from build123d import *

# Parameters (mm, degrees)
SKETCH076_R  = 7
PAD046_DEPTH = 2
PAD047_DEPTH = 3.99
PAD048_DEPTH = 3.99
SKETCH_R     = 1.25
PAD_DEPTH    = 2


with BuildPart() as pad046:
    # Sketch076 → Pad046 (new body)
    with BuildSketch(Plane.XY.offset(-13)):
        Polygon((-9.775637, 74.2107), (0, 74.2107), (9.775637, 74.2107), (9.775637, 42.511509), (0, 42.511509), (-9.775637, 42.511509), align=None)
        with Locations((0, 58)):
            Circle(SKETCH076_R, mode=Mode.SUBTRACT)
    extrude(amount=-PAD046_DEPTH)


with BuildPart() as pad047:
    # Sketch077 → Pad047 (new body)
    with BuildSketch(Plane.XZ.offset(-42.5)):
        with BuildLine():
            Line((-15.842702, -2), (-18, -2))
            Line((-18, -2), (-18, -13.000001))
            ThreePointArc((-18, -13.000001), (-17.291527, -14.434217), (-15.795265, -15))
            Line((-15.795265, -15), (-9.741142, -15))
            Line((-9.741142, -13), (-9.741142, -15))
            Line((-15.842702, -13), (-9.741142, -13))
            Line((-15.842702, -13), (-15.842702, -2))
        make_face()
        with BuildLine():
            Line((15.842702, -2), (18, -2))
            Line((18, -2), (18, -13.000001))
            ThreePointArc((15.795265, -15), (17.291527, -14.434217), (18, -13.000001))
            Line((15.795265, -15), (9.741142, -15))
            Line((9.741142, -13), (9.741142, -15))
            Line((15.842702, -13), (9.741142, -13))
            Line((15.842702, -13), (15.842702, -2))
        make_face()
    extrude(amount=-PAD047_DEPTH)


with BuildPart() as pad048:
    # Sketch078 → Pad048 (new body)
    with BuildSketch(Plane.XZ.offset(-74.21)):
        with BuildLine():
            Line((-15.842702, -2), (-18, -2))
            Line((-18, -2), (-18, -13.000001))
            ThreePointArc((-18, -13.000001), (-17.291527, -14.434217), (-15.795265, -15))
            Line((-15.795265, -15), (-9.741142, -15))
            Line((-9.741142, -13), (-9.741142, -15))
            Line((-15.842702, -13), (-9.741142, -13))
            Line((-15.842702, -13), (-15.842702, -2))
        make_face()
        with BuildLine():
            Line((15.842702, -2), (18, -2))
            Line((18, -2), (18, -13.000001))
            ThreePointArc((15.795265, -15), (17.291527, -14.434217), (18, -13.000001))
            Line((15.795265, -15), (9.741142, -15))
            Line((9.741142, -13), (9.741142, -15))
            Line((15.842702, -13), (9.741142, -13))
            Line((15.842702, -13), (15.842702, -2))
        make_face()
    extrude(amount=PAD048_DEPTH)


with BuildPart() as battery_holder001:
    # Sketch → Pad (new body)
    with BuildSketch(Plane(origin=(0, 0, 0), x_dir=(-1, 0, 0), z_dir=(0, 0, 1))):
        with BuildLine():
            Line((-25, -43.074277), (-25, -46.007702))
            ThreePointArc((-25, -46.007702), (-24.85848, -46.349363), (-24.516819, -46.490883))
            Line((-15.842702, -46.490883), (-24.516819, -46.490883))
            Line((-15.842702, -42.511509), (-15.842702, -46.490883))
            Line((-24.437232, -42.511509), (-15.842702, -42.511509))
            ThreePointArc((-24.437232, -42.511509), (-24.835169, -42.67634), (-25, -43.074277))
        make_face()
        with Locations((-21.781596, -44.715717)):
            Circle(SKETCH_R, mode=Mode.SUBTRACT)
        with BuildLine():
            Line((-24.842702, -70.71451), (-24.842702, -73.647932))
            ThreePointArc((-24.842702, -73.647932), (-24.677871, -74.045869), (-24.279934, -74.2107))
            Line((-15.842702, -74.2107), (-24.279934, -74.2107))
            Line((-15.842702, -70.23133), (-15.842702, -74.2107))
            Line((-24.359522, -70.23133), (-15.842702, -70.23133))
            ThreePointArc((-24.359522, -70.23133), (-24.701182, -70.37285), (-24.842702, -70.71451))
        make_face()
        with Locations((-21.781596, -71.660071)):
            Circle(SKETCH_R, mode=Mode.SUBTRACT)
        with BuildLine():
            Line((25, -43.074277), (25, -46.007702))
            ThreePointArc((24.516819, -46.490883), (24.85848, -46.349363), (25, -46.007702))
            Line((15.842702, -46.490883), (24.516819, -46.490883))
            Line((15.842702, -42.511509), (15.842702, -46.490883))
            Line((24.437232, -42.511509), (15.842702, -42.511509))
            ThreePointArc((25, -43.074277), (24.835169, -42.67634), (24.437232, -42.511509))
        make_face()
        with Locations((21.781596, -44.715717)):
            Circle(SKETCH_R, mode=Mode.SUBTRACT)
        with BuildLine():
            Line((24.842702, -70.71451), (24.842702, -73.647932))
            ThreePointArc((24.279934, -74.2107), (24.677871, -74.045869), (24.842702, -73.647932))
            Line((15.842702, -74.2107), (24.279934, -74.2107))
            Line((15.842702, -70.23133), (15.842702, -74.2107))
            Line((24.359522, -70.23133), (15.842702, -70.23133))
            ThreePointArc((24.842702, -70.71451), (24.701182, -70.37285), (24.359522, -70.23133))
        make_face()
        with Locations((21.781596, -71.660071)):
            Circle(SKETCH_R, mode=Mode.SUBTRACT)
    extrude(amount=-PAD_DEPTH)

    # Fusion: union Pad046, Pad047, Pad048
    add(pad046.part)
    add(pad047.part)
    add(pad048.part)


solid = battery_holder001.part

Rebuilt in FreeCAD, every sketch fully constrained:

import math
import FreeCAD as App
import Part
import Sketcher
from FreeCAD import Vector
Q = App.Units.Quantity


def add_polygon(sketch, points):
    """Adds a closed chain of lines whose ends are joined by coincident constraints."""
    first, n = sketch.GeometryCount, len(points)
    for a, b in zip(points, points[1:] + points[:1]):
        sketch.addGeometry(Part.LineSegment(App.Vector(*a, 0), App.Vector(*b, 0)), False)
    for i in range(n):
        sketch.addConstraint(Sketcher.Constraint("Coincident", first + i, 2, first + (i + 1) % n, 1))

doc = App.newDocument("Part")
body = doc.addObject("PartDesign::Body", "Body")

# Sketch on XY plane
sketch1 = body.newObject("Sketcher::SketchObject", "Sketch")
sketch1.AttachmentSupport = (doc.getObject("XY_Plane"), [""])
sketch1.MapMode = "FlatFace"
sketch1.AttachmentOffset = App.Placement(Vector(0, 0, -13), App.Rotation())
add_polygon(sketch1, [(9.775637, 74.2107), (-9.775637, 74.2107), (-9.775637, 42.511509), (9.775637, 42.511509)])  # lines 0-3
sketch1.addGeometry(Part.Circle(Vector(0, 58, 0), Vector(0, 0, 1), 7), False)  # 4
sketch1.addConstraint(Sketcher.Constraint("Horizontal", 0))
sketch1.addConstraint(Sketcher.Constraint("Vertical", 1))
sketch1.addConstraint(Sketcher.Constraint("Horizontal", 2))
sketch1.addConstraint(Sketcher.Constraint("Vertical", 3))
sketch1.addConstraint(Sketcher.Constraint("PointOnObject", 4, 3, -2))
sketch1.addConstraint(Sketcher.Constraint("Diameter", 4, Q("14 mm")))
sketch1.addConstraint(Sketcher.Constraint("DistanceY", -1, 1, 4, 3, Q("58 mm")))
sketch1.addConstraint(Sketcher.Constraint("DistanceY", 1, 2, 1, 1, Q("31.699191 mm")))
sketch1.addConstraint(Sketcher.Constraint("DistanceY", -1, 1, 0, 2, Q("74.2107 mm")))
sketch1.addConstraint(Sketcher.Constraint("DistanceX", 0, 2, 0, 1, Q("19.551274 mm")))
sketch1.addConstraint(Sketcher.Constraint("DistanceX", 0, 2, -1, 1, Q("9.775637 mm")))
pad1 = body.newObject("PartDesign::Pad", "Pad")
pad1.Profile = sketch1
pad1.Length = 2
pad1.Reversed = True
body2 = doc.addObject("PartDesign::Body", "Body001")
body2.AllowCompound = True

# Sketch on XZ plane
sketch2 = body2.newObject("Sketcher::SketchObject", "Sketch001")
sketch2.AttachmentSupport = (doc.getObject("XZ_Plane001"), [""])
sketch2.MapMode = "FlatFace"
sketch2.AttachmentOffset = App.Placement(Vector(0, 0, -42.5), App.Rotation())
sketch2.addGeometry(Part.LineSegment(Vector(-15.842702, -2, 0), Vector(-18, -2, 0)), False)
sketch2.addGeometry(Part.LineSegment(Vector(-18, -2, 0), Vector(-18, -13.000001, 0)), False)
sketch2.addGeometry(Part.ArcOfCircle(Part.Circle(Vector(-15.825205, -12.817791, 0), Vector(0, 0, 1), 2.182414), math.radians(-175.210792), math.radians(-89.213944)), False)
sketch2.addGeometry(Part.LineSegment(Vector(-15.795265, -15, 0), Vector(-9.741142, -15, 0)), False)
sketch2.addGeometry(Part.LineSegment(Vector(-9.741142, -15, 0), Vector(-9.741142, -13, 0)), False)
sketch2.addGeometry(Part.LineSegment(Vector(-9.741142, -13, 0), Vector(-15.842702, -13, 0)), False)
sketch2.addGeometry(Part.LineSegment(Vector(-15.842702, -13, 0), Vector(-15.842702, -2, 0)), False)
sketch2.addGeometry(Part.LineSegment(Vector(18, -2, 0), Vector(15.842702, -2, 0)), False)
sketch2.addGeometry(Part.LineSegment(Vector(15.842702, -2, 0), Vector(15.842702, -13, 0)), False)
sketch2.addGeometry(Part.LineSegment(Vector(15.842702, -13, 0), Vector(9.741142, -13, 0)), False)
sketch2.addGeometry(Part.LineSegment(Vector(9.741142, -13, 0), Vector(9.741142, -15, 0)), False)
sketch2.addGeometry(Part.LineSegment(Vector(9.741142, -15, 0), Vector(15.795265, -15, 0)), False)
sketch2.addGeometry(Part.ArcOfCircle(Part.Circle(Vector(15.825205, -12.817791, 0), Vector(0, 0, 1), 2.182414), math.radians(-90.786056), math.radians(-4.789208)), False)
sketch2.addGeometry(Part.LineSegment(Vector(18, -13.000001, 0), Vector(18, -2, 0)), False)
sketch2.addConstraint(Sketcher.Constraint("Coincident", 0, 2, 1, 1))
sketch2.addConstraint(Sketcher.Constraint("Coincident", 1, 2, 2, 1))
sketch2.addConstraint(Sketcher.Constraint("Coincident", 2, 2, 3, 1))
sketch2.addConstraint(Sketcher.Constraint("Coincident", 3, 2, 4, 1))
sketch2.addConstraint(Sketcher.Constraint("Coincident", 4, 2, 5, 1))
sketch2.addConstraint(Sketcher.Constraint("Coincident", 5, 2, 6, 1))
sketch2.addConstraint(Sketcher.Constraint("Coincident", 6, 2, 0, 1))
sketch2.addConstraint(Sketcher.Constraint("Coincident", 7, 2, 8, 1))
sketch2.addConstraint(Sketcher.Constraint("Coincident", 8, 2, 9, 1))
sketch2.addConstraint(Sketcher.Constraint("Coincident", 9, 2, 10, 1))
sketch2.addConstraint(Sketcher.Constraint("Coincident", 10, 2, 11, 1))
sketch2.addConstraint(Sketcher.Constraint("Coincident", 11, 2, 12, 1))
sketch2.addConstraint(Sketcher.Constraint("Coincident", 12, 2, 13, 1))
sketch2.addConstraint(Sketcher.Constraint("Coincident", 13, 2, 7, 1))
sketch2.addConstraint(Sketcher.Constraint("Horizontal", 0))
sketch2.addConstraint(Sketcher.Constraint("Vertical", 1))
sketch2.addConstraint(Sketcher.Constraint("Horizontal", 3))
sketch2.addConstraint(Sketcher.Constraint("Vertical", 4))
sketch2.addConstraint(Sketcher.Constraint("Horizontal", 5))
sketch2.addConstraint(Sketcher.Constraint("Vertical", 6))
sketch2.addConstraint(Sketcher.Constraint("Horizontal", 7))
sketch2.addConstraint(Sketcher.Constraint("Vertical", 8))
sketch2.addConstraint(Sketcher.Constraint("Horizontal", 9))
sketch2.addConstraint(Sketcher.Constraint("Vertical", 10))
sketch2.addConstraint(Sketcher.Constraint("Horizontal", 11))
sketch2.addConstraint(Sketcher.Constraint("Vertical", 13))
sketch2.addConstraint(Sketcher.Constraint("Equal", 2, 12))
sketch2.addConstraint(Sketcher.Constraint("Symmetric", 2, 3, 12, 3, -2))
sketch2.addConstraint(Sketcher.Constraint("Symmetric", 6, 2, 7, 2, -2))
sketch2.addConstraint(Sketcher.Constraint("Symmetric", 4, 2, 9, 2, -2))
sketch2.addConstraint(Sketcher.Constraint("Horizontal", 1, 2, 4, 2))
sketch2.addConstraint(Sketcher.Constraint("Horizontal", 3, 2, 10, 2))
sketch2.addConstraint(Sketcher.Constraint("Horizontal", 9, 2, 12, 2))
sketch2.addConstraint(Sketcher.Constraint("DistanceY", 1, 2, 1, 1, Q("11.000001 mm")))
sketch2.addConstraint(Sketcher.Constraint("DistanceY", 4, 1, 4, 2, Q("2 mm")))
sketch2.addConstraint(Sketcher.Constraint("DistanceX", 0, 2, -1, 1, Q("18 mm")))
sketch2.addConstraint(Sketcher.Constraint("DistanceY", 0, 2, -1, 1, Q("2 mm")))
sketch2.addConstraint(Sketcher.Constraint("DistanceX", 0, 2, 0, 1, Q("2.157298 mm")))
sketch2.addConstraint(Sketcher.Constraint("Radius", 2, Q("2.182414 mm")))
sketch2.addConstraint(Sketcher.Constraint("DistanceX", 5, 2, 5, 1, Q("6.10156 mm")))
sketch2.addConstraint(Sketcher.Constraint("DistanceX", 3, 1, 3, 2, Q("6.054123 mm")))
pad2 = body2.newObject("PartDesign::Pad", "Pad001")
pad2.Profile = sketch2
pad2.Length = 3.99
pad2.Reversed = True
body3 = doc.addObject("PartDesign::Body", "Body002")
body3.AllowCompound = True

# Sketch on XZ plane
sketch3 = body3.newObject("Sketcher::SketchObject", "Sketch002")
sketch3.AttachmentSupport = (doc.getObject("XZ_Plane002"), [""])
sketch3.MapMode = "FlatFace"
sketch3.AttachmentOffset = App.Placement(Vector(0, 0, -74.21), App.Rotation())
sketch3.addGeometry(Part.LineSegment(Vector(-15.842702, -2, 0), Vector(-18, -2, 0)), False)
sketch3.addGeometry(Part.LineSegment(Vector(-18, -2, 0), Vector(-18, -13.000001, 0)), False)
sketch3.addGeometry(Part.ArcOfCircle(Part.Circle(Vector(-15.825205, -12.817791, 0), Vector(0, 0, 1), 2.182414), math.radians(-175.210792), math.radians(-89.213944)), False)
sketch3.addGeometry(Part.LineSegment(Vector(-15.795265, -15, 0), Vector(-9.741142, -15, 0)), False)
sketch3.addGeometry(Part.LineSegment(Vector(-9.741142, -15, 0), Vector(-9.741142, -13, 0)), False)
sketch3.addGeometry(Part.LineSegment(Vector(-9.741142, -13, 0), Vector(-15.842702, -13, 0)), False)
sketch3.addGeometry(Part.LineSegment(Vector(-15.842702, -13, 0), Vector(-15.842702, -2, 0)), False)
sketch3.addGeometry(Part.LineSegment(Vector(18, -2, 0), Vector(15.842702, -2, 0)), False)
sketch3.addGeometry(Part.LineSegment(Vector(15.842702, -2, 0), Vector(15.842702, -13, 0)), False)
sketch3.addGeometry(Part.LineSegment(Vector(15.842702, -13, 0), Vector(9.741142, -13, 0)), False)
sketch3.addGeometry(Part.LineSegment(Vector(9.741142, -13, 0), Vector(9.741142, -15, 0)), False)
sketch3.addGeometry(Part.LineSegment(Vector(9.741142, -15, 0), Vector(15.795265, -15, 0)), False)
sketch3.addGeometry(Part.ArcOfCircle(Part.Circle(Vector(15.825205, -12.817791, 0), Vector(0, 0, 1), 2.182414), math.radians(-90.786056), math.radians(-4.789208)), False)
sketch3.addGeometry(Part.LineSegment(Vector(18, -13.000001, 0), Vector(18, -2, 0)), False)
sketch3.addConstraint(Sketcher.Constraint("Coincident", 0, 2, 1, 1))
sketch3.addConstraint(Sketcher.Constraint("Coincident", 1, 2, 2, 1))
sketch3.addConstraint(Sketcher.Constraint("Coincident", 2, 2, 3, 1))
sketch3.addConstraint(Sketcher.Constraint("Coincident", 3, 2, 4, 1))
sketch3.addConstraint(Sketcher.Constraint("Coincident", 4, 2, 5, 1))
sketch3.addConstraint(Sketcher.Constraint("Coincident", 5, 2, 6, 1))
sketch3.addConstraint(Sketcher.Constraint("Coincident", 6, 2, 0, 1))
sketch3.addConstraint(Sketcher.Constraint("Coincident", 7, 2, 8, 1))
sketch3.addConstraint(Sketcher.Constraint("Coincident", 8, 2, 9, 1))
sketch3.addConstraint(Sketcher.Constraint("Coincident", 9, 2, 10, 1))
sketch3.addConstraint(Sketcher.Constraint("Coincident", 10, 2, 11, 1))
sketch3.addConstraint(Sketcher.Constraint("Coincident", 11, 2, 12, 1))
sketch3.addConstraint(Sketcher.Constraint("Coincident", 12, 2, 13, 1))
sketch3.addConstraint(Sketcher.Constraint("Coincident", 13, 2, 7, 1))
sketch3.addConstraint(Sketcher.Constraint("Horizontal", 0))
sketch3.addConstraint(Sketcher.Constraint("Vertical", 1))
sketch3.addConstraint(Sketcher.Constraint("Horizontal", 3))
sketch3.addConstraint(Sketcher.Constraint("Vertical", 4))
sketch3.addConstraint(Sketcher.Constraint("Horizontal", 5))
sketch3.addConstraint(Sketcher.Constraint("Vertical", 6))
sketch3.addConstraint(Sketcher.Constraint("Horizontal", 7))
sketch3.addConstraint(Sketcher.Constraint("Vertical", 8))
sketch3.addConstraint(Sketcher.Constraint("Horizontal", 9))
sketch3.addConstraint(Sketcher.Constraint("Vertical", 10))
sketch3.addConstraint(Sketcher.Constraint("Horizontal", 11))
sketch3.addConstraint(Sketcher.Constraint("Vertical", 13))
sketch3.addConstraint(Sketcher.Constraint("Equal", 2, 12))
sketch3.addConstraint(Sketcher.Constraint("Symmetric", 2, 3, 12, 3, -2))
sketch3.addConstraint(Sketcher.Constraint("Symmetric", 6, 2, 7, 2, -2))
sketch3.addConstraint(Sketcher.Constraint("Symmetric", 4, 2, 9, 2, -2))
sketch3.addConstraint(Sketcher.Constraint("Horizontal", 1, 2, 4, 2))
sketch3.addConstraint(Sketcher.Constraint("Horizontal", 3, 2, 10, 2))
sketch3.addConstraint(Sketcher.Constraint("Horizontal", 9, 2, 12, 2))
sketch3.addConstraint(Sketcher.Constraint("DistanceY", 1, 2, 1, 1, Q("11.000001 mm")))
sketch3.addConstraint(Sketcher.Constraint("DistanceY", 4, 1, 4, 2, Q("2 mm")))
sketch3.addConstraint(Sketcher.Constraint("DistanceX", 0, 2, -1, 1, Q("18 mm")))
sketch3.addConstraint(Sketcher.Constraint("DistanceY", 0, 2, -1, 1, Q("2 mm")))
sketch3.addConstraint(Sketcher.Constraint("DistanceX", 0, 2, 0, 1, Q("2.157298 mm")))
sketch3.addConstraint(Sketcher.Constraint("Radius", 2, Q("2.182414 mm")))
sketch3.addConstraint(Sketcher.Constraint("DistanceX", 5, 2, 5, 1, Q("6.10156 mm")))
sketch3.addConstraint(Sketcher.Constraint("DistanceX", 3, 1, 3, 2, Q("6.054123 mm")))
pad3 = body3.newObject("PartDesign::Pad", "Pad002")
pad3.Profile = sketch3
pad3.Length = 3.99
body4 = doc.addObject("PartDesign::Body", "Body003")
body4.AllowCompound = True

# Sketch on XY plane
sketch4 = body4.newObject("Sketcher::SketchObject", "Sketch003")
sketch4.AttachmentSupport = (doc.getObject("XY_Plane003"), [""])
sketch4.MapMode = "FlatFace"
sketch4.addGeometry(Part.LineSegment(Vector(25, 43.074277, 0), Vector(25, 46.007702, 0)), False)
sketch4.addGeometry(Part.ArcOfCircle(Part.Circle(Vector(24.51682, 46.007703, 0), Vector(0, 0, 1), 0.48318), math.radians(-0.000178), math.radians(90.000178)), False)
sketch4.addGeometry(Part.LineSegment(Vector(24.516819, 46.490883, 0), Vector(15.842702, 46.490883, 0)), False)
sketch4.addGeometry(Part.LineSegment(Vector(15.842702, 46.490883, 0), Vector(15.842702, 42.511509, 0)), False)
sketch4.addGeometry(Part.LineSegment(Vector(15.842702, 42.511509, 0), Vector(24.437232, 42.511509, 0)), False)
sketch4.addGeometry(Part.ArcOfCircle(Part.Circle(Vector(24.437232, 43.074277, 0), Vector(0, 0, 1), 0.562768), math.radians(-89.999976), math.radians(-0.000024)), False)
sketch4.addGeometry(Part.Circle(Vector(21.781596, 44.715717, 0), Vector(0, 0, 1), 1.25), False)
sketch4.addGeometry(Part.LineSegment(Vector(24.842702, 70.71451, 0), Vector(24.842702, 73.647932, 0)), False)
sketch4.addGeometry(Part.ArcOfCircle(Part.Circle(Vector(24.279934, 73.647932, 0), Vector(0, 0, 1), 0.562768), math.radians(0.000024), math.radians(89.999976)), False)
sketch4.addGeometry(Part.LineSegment(Vector(24.279934, 74.2107, 0), Vector(15.842702, 74.2107, 0)), False)
sketch4.addGeometry(Part.LineSegment(Vector(15.842702, 74.2107, 0), Vector(15.842702, 70.23133, 0)), False)
sketch4.addGeometry(Part.LineSegment(Vector(15.842702, 70.23133, 0), Vector(24.359522, 70.23133, 0)), False)
sketch4.addGeometry(Part.ArcOfCircle(Part.Circle(Vector(24.359522, 70.71451, 0), Vector(0, 0, 1), 0.48318), math.radians(-90.000059), math.radians(0.000059)), False)
sketch4.addGeometry(Part.Circle(Vector(21.781596, 71.660071, 0), Vector(0, 0, 1), 1.25), False)
sketch4.addGeometry(Part.LineSegment(Vector(-25, 46.007702, 0), Vector(-25, 43.074277, 0)), False)
sketch4.addGeometry(Part.ArcOfCircle(Part.Circle(Vector(-24.437232, 43.074277, 0), Vector(0, 0, 1), 0.562768), math.radians(-179.999976), math.radians(-90.000024)), False)
sketch4.addGeometry(Part.LineSegment(Vector(-24.437232, 42.511509, 0), Vector(-15.842702, 42.511509, 0)), False)
sketch4.addGeometry(Part.LineSegment(Vector(-15.842702, 42.511509, 0), Vector(-15.842702, 46.490883, 0)), False)
sketch4.addGeometry(Part.LineSegment(Vector(-15.842702, 46.490883, 0), Vector(-24.516819, 46.490883, 0)), False)
sketch4.addGeometry(Part.ArcOfCircle(Part.Circle(Vector(-24.51682, 46.007703, 0), Vector(0, 0, 1), 0.48318), math.radians(89.999822), math.radians(180.000178)), False)
sketch4.addGeometry(Part.Circle(Vector(-21.781596, 44.715717, 0), Vector(0, 0, 1), 1.25), False)
sketch4.addGeometry(Part.LineSegment(Vector(-24.842702, 73.647932, 0), Vector(-24.842702, 70.71451, 0)), False)
sketch4.addGeometry(Part.ArcOfCircle(Part.Circle(Vector(-24.359522, 70.71451, 0), Vector(0, 0, 1), 0.48318), math.radians(179.999941), math.radians(270.000059)), False)
sketch4.addGeometry(Part.LineSegment(Vector(-24.359522, 70.23133, 0), Vector(-15.842702, 70.23133, 0)), False)
sketch4.addGeometry(Part.LineSegment(Vector(-15.842702, 70.23133, 0), Vector(-15.842702, 74.2107, 0)), False)
sketch4.addGeometry(Part.LineSegment(Vector(-15.842702, 74.2107, 0), Vector(-24.279934, 74.2107, 0)), False)
sketch4.addGeometry(Part.ArcOfCircle(Part.Circle(Vector(-24.279934, 73.647932, 0), Vector(0, 0, 1), 0.562768), math.radians(90.000024), math.radians(179.999976)), False)
sketch4.addGeometry(Part.Circle(Vector(-21.781596, 71.660071, 0), Vector(0, 0, 1), 1.25), False)
sketch4.addConstraint(Sketcher.Constraint("Coincident", 0, 2, 1, 1))
sketch4.addConstraint(Sketcher.Constraint("Coincident", 1, 2, 2, 1))
sketch4.addConstraint(Sketcher.Constraint("Coincident", 2, 2, 3, 1))
sketch4.addConstraint(Sketcher.Constraint("Coincident", 3, 2, 4, 1))
sketch4.addConstraint(Sketcher.Constraint("Tangent", 4, 2, 5, 1))
sketch4.addConstraint(Sketcher.Constraint("Tangent", 5, 2, 0, 1))
sketch4.addConstraint(Sketcher.Constraint("Tangent", 7, 2, 8, 1))
sketch4.addConstraint(Sketcher.Constraint("Tangent", 8, 2, 9, 1))
sketch4.addConstraint(Sketcher.Constraint("Coincident", 9, 2, 10, 1))
sketch4.addConstraint(Sketcher.Constraint("Coincident", 10, 2, 11, 1))
sketch4.addConstraint(Sketcher.Constraint("Tangent", 11, 2, 12, 1))
sketch4.addConstraint(Sketcher.Constraint("Tangent", 12, 2, 7, 1))
sketch4.addConstraint(Sketcher.Constraint("Tangent", 14, 2, 15, 1))
sketch4.addConstraint(Sketcher.Constraint("Tangent", 15, 2, 16, 1))
sketch4.addConstraint(Sketcher.Constraint("Coincident", 16, 2, 17, 1))
sketch4.addConstraint(Sketcher.Constraint("Coincident", 17, 2, 18, 1))
sketch4.addConstraint(Sketcher.Constraint("Coincident", 18, 2, 19, 1))
sketch4.addConstraint(Sketcher.Constraint("Coincident", 19, 2, 14, 1))
sketch4.addConstraint(Sketcher.Constraint("Tangent", 21, 2, 22, 1))
sketch4.addConstraint(Sketcher.Constraint("Tangent", 22, 2, 23, 1))
sketch4.addConstraint(Sketcher.Constraint("Coincident", 23, 2, 24, 1))
sketch4.addConstraint(Sketcher.Constraint("Coincident", 24, 2, 25, 1))
sketch4.addConstraint(Sketcher.Constraint("Tangent", 25, 2, 26, 1))
sketch4.addConstraint(Sketcher.Constraint("Tangent", 26, 2, 21, 1))
sketch4.addConstraint(Sketcher.Constraint("Vertical", 0))
sketch4.addConstraint(Sketcher.Constraint("Horizontal", 2))
sketch4.addConstraint(Sketcher.Constraint("Vertical", 3))
sketch4.addConstraint(Sketcher.Constraint("Horizontal", 4))
sketch4.addConstraint(Sketcher.Constraint("Vertical", 7))
sketch4.addConstraint(Sketcher.Constraint("Horizontal", 9))
sketch4.addConstraint(Sketcher.Constraint("Vertical", 10))
sketch4.addConstraint(Sketcher.Constraint("Horizontal", 11))
sketch4.addConstraint(Sketcher.Constraint("Vertical", 14))
sketch4.addConstraint(Sketcher.Constraint("Horizontal", 16))
sketch4.addConstraint(Sketcher.Constraint("Vertical", 17))
sketch4.addConstraint(Sketcher.Constraint("Horizontal", 18))
sketch4.addConstraint(Sketcher.Constraint("Vertical", 21))
sketch4.addConstraint(Sketcher.Constraint("Horizontal", 23))
sketch4.addConstraint(Sketcher.Constraint("Vertical", 24))
sketch4.addConstraint(Sketcher.Constraint("Horizontal", 25))
sketch4.addConstraint(Sketcher.Constraint("Equal", 5, 8))
sketch4.addConstraint(Sketcher.Constraint("Equal", 1, 12))
sketch4.addConstraint(Sketcher.Constraint("Equal", 6, 13))
sketch4.addConstraint(Sketcher.Constraint("Equal", 8, 15))
sketch4.addConstraint(Sketcher.Constraint("Equal", 12, 19))
sketch4.addConstraint(Sketcher.Constraint("Equal", 13, 20))
sketch4.addConstraint(Sketcher.Constraint("Equal", 19, 22))
sketch4.addConstraint(Sketcher.Constraint("Equal", 15, 26))
sketch4.addConstraint(Sketcher.Constraint("Equal", 20, 27))
sketch4.addConstraint(Sketcher.Constraint("Symmetric", 5, 3, 15, 3, -2))
sketch4.addConstraint(Sketcher.Constraint("Symmetric", 6, 3, 20, 3, -2))
sketch4.addConstraint(Sketcher.Constraint("Symmetric", 12, 3, 22, 3, -2))
sketch4.addConstraint(Sketcher.Constraint("Symmetric", 13, 3, 27, 3, -2))
sketch4.addConstraint(Sketcher.Constraint("Symmetric", 2, 2, 17, 2, -2))
sketch4.addConstraint(Sketcher.Constraint("Symmetric", 9, 2, 24, 2, -2))
sketch4.addConstraint(Sketcher.Constraint("Horizontal", 19, 3, 0, 2))
sketch4.addConstraint(Sketcher.Constraint("Horizontal", 0, 2, 19, 2))
sketch4.addConstraint(Sketcher.Constraint("Vertical", 6, 3, 13, 3))
sketch4.addConstraint(Sketcher.Constraint("Vertical", 3, 2, 9, 2))
sketch4.addConstraint(Sketcher.Constraint("Vertical", 19, 3, 18, 2))
sketch4.addConstraint(Sketcher.Constraint("Equal", 2, 18))
sketch4.addConstraint(Sketcher.Constraint("Diameter", 6, Q("2.5 mm")))
sketch4.addConstraint(Sketcher.Constraint("DistanceX", -1, 1, 0, 2, Q("25 mm")))
sketch4.addConstraint(Sketcher.Constraint("DistanceX", 9, 2, 7, 2, Q("9 mm")))
sketch4.addConstraint(Sketcher.Constraint("Radius", 1, Q("0.48318 mm")))
sketch4.addConstraint(Sketcher.Constraint("Radius", 5, Q("0.562768 mm")))
sketch4.addConstraint(Sketcher.Constraint("DistanceY", 15, 2, 22, 3, Q("28.203001 mm")))
sketch4.addConstraint(Sketcher.Constraint("DistanceX", 4, 1, 4, 2, Q("8.59453 mm")))
sketch4.addConstraint(Sketcher.Constraint("DistanceY", 7, 1, 7, 2, Q("2.933422 mm")))
sketch4.addConstraint(Sketcher.Constraint("DistanceY", -1, 1, 8, 2, Q("74.2107 mm")))
sketch4.addConstraint(Sketcher.Constraint("DistanceY", 0, 1, 0, 2, Q("2.933425 mm")))
sketch4.addConstraint(Sketcher.Constraint("DistanceY", -1, 1, 13, 3, Q("71.660071 mm")))
sketch4.addConstraint(Sketcher.Constraint("DistanceY", 5, 3, 6, 3, Q("1.64144 mm")))
sketch4.addConstraint(Sketcher.Constraint("DistanceX", 22, 3, 13, 3, Q("46.141118 mm")))
pad4 = body4.newObject("PartDesign::Pad", "Pad003")
pad4.Profile = sketch4
pad4.Length = 2
pad4.Reversed = True
doc.recompute()

boolean = body4.newObject("PartDesign::Boolean", "Boolean")
boolean.Type = "Fuse"
boolean.addObjects([body])
doc.recompute()

boolean2 = body4.newObject("PartDesign::Boolean", "Boolean001")
boolean2.Type = "Fuse"
boolean2.addObjects([body2])
doc.recompute()

boolean3 = body4.newObject("PartDesign::Boolean", "Boolean002")
boolean3.Type = "Fuse"
boolean3.addObjects([body3])

doc.recompute()
